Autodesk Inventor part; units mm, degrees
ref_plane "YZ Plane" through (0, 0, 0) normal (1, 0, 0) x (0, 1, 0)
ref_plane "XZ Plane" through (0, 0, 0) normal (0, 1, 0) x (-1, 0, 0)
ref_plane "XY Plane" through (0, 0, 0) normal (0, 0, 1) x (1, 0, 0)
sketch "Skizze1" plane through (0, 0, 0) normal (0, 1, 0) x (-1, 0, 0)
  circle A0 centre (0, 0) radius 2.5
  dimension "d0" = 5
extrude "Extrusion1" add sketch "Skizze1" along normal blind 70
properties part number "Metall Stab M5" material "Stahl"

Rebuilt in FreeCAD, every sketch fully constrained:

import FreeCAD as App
import Part
import Sketcher
Q = App.Units.Quantity

doc = App.newDocument("Part")
body = doc.addObject("PartDesign::Body", "Body")

sketch1 = body.newObject("Sketcher::SketchObject", "Sketch")
sketch1.AttachmentSupport = (doc.getObject("XZ_Plane"), [""])
sketch1.MapMode = "FlatFace"
sketch1.addGeometry(Part.Circle(App.Vector(0, 0, 0), App.Vector(0, 0, 1), 2.5), False)
sketch1.addConstraint(Sketcher.Constraint("Coincident", 0, 3, -1, 1))
sketch1.addConstraint(Sketcher.Constraint("Diameter", 0, Q("5 mm")))
pad1 = body.newObject("PartDesign::Pad", "Pad")
pad1.Profile = sketch1
pad1.Length = 70
pad1.Reversed = True

doc.recompute()
